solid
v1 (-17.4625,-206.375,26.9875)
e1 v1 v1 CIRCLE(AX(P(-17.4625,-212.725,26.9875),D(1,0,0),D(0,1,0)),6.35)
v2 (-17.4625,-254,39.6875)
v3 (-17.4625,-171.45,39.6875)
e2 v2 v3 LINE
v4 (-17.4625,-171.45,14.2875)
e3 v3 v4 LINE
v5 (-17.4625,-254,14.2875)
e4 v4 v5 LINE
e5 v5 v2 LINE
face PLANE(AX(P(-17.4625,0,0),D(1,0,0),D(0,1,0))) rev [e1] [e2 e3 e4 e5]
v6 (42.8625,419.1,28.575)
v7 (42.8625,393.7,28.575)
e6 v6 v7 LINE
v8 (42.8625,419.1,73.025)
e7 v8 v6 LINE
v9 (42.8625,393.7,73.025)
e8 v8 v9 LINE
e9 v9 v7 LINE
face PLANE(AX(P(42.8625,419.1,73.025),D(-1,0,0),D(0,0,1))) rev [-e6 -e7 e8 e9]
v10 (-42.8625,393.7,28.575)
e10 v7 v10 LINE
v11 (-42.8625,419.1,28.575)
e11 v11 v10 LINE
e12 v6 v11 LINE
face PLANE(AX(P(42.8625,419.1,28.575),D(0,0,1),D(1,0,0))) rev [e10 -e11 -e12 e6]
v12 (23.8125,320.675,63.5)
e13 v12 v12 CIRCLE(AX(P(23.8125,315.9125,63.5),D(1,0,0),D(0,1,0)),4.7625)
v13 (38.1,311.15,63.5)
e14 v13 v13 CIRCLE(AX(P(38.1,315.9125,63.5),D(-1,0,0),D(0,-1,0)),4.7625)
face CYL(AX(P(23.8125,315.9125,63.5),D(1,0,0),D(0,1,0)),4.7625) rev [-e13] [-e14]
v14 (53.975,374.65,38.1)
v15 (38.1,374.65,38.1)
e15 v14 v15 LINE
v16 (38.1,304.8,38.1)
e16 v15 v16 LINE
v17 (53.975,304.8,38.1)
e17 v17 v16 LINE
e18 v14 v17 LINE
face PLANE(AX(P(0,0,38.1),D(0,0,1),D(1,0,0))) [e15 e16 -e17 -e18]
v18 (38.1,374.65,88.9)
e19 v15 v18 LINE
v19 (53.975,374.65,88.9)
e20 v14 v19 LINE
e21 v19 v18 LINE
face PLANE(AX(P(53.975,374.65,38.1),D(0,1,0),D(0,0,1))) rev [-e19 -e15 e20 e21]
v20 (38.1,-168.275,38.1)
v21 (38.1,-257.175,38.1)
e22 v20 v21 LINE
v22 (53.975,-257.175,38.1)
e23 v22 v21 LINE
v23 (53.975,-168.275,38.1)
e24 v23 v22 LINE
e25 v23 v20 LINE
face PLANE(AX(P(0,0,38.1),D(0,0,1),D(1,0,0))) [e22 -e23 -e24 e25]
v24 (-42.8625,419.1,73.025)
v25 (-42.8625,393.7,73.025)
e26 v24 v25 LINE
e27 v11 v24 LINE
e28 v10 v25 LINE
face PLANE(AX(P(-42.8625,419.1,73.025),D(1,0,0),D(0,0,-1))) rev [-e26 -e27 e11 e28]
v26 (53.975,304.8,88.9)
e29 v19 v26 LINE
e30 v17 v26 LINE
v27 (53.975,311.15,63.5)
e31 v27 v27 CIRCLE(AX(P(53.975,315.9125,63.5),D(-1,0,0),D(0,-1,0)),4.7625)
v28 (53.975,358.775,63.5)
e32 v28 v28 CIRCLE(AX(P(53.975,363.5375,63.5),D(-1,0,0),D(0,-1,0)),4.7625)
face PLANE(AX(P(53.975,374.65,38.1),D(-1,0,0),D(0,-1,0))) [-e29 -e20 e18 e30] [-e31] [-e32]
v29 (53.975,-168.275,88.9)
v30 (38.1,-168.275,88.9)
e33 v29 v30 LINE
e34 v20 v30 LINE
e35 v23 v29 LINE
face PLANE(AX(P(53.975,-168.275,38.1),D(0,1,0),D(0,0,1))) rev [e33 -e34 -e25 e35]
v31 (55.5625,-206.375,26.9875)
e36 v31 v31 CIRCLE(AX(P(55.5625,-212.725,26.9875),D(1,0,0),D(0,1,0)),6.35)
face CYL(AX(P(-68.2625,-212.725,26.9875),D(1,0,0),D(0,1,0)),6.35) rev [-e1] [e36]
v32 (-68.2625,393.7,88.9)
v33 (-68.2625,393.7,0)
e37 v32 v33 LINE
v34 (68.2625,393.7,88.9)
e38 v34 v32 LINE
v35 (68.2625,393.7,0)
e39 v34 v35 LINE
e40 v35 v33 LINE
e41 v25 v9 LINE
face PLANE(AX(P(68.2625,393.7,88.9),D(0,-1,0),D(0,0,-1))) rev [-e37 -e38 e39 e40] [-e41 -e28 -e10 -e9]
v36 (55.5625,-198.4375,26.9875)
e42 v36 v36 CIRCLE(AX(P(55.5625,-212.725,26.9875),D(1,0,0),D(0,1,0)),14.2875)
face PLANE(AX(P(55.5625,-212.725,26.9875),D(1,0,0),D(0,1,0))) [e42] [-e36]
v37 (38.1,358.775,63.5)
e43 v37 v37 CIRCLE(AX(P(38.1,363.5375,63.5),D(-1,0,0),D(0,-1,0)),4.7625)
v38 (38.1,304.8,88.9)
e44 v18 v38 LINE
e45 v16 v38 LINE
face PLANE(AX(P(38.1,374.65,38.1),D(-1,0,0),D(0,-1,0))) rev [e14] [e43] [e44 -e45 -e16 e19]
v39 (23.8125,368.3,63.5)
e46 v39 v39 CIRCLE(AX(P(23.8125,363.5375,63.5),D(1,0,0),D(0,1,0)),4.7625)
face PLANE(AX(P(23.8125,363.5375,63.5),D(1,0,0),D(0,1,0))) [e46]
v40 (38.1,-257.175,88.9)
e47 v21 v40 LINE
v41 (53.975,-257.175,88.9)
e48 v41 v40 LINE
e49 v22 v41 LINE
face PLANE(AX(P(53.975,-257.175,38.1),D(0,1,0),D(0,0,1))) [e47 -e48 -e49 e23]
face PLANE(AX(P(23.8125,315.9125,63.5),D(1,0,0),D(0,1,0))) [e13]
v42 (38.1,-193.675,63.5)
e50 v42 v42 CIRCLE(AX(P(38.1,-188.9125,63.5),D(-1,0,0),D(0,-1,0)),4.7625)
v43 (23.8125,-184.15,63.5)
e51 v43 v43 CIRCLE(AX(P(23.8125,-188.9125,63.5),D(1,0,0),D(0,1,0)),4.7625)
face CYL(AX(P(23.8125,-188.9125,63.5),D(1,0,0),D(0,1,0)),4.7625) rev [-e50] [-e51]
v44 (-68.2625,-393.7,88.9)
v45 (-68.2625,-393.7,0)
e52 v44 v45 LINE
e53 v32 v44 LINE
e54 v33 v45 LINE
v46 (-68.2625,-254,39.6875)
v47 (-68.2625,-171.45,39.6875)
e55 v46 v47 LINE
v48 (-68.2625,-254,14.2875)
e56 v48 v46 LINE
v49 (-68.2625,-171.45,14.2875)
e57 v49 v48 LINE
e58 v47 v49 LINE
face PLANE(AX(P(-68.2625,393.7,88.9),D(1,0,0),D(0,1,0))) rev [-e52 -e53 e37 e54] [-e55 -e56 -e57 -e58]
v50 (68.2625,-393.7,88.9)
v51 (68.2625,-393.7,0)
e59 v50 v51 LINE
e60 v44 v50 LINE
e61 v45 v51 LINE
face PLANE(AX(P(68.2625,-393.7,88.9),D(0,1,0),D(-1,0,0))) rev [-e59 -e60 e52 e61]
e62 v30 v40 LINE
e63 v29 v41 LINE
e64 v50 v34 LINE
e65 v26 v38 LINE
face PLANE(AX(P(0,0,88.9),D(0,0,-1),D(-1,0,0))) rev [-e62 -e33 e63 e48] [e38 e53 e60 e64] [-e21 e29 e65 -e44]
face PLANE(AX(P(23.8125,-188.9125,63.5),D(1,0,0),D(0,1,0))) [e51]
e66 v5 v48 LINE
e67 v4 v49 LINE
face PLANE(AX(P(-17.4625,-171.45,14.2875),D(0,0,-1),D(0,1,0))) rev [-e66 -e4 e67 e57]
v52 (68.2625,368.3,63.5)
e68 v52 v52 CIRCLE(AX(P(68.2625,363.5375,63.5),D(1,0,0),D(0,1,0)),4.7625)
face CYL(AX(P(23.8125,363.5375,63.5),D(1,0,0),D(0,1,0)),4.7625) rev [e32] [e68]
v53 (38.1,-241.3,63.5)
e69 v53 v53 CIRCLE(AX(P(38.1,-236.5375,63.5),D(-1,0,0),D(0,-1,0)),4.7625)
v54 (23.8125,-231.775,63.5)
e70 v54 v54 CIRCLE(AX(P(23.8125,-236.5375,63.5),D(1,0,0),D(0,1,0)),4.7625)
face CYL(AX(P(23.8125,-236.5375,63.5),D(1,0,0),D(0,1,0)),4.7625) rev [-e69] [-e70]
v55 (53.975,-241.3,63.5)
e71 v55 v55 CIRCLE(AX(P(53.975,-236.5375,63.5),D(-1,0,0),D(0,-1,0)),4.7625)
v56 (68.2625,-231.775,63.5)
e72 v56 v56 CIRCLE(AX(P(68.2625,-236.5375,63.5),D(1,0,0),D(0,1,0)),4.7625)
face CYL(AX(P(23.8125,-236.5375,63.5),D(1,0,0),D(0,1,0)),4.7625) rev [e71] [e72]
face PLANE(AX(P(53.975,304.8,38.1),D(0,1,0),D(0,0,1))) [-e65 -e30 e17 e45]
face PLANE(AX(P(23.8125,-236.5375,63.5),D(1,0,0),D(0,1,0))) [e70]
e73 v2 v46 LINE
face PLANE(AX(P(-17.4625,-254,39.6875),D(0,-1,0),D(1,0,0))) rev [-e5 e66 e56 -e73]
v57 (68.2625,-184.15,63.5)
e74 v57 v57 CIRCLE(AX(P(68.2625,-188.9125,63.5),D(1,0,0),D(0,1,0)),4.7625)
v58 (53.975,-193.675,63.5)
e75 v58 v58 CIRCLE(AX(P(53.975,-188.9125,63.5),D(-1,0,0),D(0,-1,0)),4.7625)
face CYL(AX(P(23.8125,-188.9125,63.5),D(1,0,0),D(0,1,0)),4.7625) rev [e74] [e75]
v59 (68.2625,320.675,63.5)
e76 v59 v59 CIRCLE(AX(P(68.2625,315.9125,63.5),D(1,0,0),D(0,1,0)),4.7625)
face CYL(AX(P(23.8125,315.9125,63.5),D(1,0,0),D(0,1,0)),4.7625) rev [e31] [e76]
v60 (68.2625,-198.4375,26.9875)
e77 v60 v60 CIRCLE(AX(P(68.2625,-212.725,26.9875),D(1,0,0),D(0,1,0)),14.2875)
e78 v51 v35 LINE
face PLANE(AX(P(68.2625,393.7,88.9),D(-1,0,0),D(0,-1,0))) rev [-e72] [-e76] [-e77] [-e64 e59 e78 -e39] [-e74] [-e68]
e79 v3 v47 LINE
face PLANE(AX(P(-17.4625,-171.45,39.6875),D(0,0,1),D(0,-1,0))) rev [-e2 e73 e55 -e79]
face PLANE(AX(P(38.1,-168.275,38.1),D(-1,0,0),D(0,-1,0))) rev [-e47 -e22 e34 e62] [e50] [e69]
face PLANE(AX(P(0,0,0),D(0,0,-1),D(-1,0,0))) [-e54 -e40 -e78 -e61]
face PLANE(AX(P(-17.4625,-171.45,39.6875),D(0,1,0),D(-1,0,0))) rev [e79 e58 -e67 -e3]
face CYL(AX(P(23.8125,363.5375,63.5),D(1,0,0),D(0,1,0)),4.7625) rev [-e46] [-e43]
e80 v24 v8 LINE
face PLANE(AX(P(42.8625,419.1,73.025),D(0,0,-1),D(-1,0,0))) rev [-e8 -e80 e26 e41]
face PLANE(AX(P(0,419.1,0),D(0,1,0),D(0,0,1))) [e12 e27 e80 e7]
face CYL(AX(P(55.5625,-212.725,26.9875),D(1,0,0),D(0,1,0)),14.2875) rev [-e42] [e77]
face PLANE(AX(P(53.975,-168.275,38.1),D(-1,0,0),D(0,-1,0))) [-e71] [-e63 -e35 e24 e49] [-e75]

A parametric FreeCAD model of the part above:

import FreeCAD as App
import Part
import Sketcher

V = App.Vector
Q = App.Units.Quantity


def add_polygon(sketch, points):
    """Adds a closed chain of lines whose ends are joined by coincident constraints."""
    first, n = sketch.GeometryCount, len(points)
    for a, b in zip(points, points[1:] + points[:1]):
        sketch.addGeometry(Part.LineSegment(App.Vector(*a, 0), App.Vector(*b, 0)), False)
    for i in range(n):
        sketch.addConstraint(Sketcher.Constraint("Coincident", first + i, 2, first + (i + 1) % n, 1))

doc = App.newDocument("Part")
params = doc.addObject("Spreadsheet::Sheet", "Params")
for row, (alias, value) in enumerate([
    ("sketch1_height", "31 in"),
    ("sketch1_width", "5.375 in"),
    ("pad1_length", "3.5 in"),
    ("sketch2_height", "1.75 in"),
    ("sketch2_width", "3.375 in"),
    ("pad2_length", "1 in"),
    ("sketch3_height", "1 in"),
    ("sketch3_width", "3.25 in"),
    ("pocket1_length", "2 in"),
    ("sketch4_height", "3.5 in"),
    ("sketch4_height2", "2.75 in"),
    ("sketch4_width", "0.625 in"),
    ("pocket2_length", "2 in"),
    ("sketch5_diameter", "0.375 in"),
    ("pocket3_length", "1.75 in"),
    ("sketch6_diameter", "1.125 in"),
    ("pocket4_length", "0.5 in"),
    ("sketch7_diameter", "0.5 in"),
], start=1):
    params.set(f"A{row}", alias)
    params.set(f"B{row}", "=" + value)
    params.setAlias(f"B{row}", alias)

body = doc.addObject("PartDesign::Body", "Body")

sketch1 = body.newObject("Sketcher::SketchObject", "Sketch")
sketch1.AttachmentSupport = (doc.getObject("XY_Plane"), [""])
sketch1.MapMode = "FlatFace"
add_polygon(sketch1, [(-68, 394), (-68, -394), (68, -394), (68, 394)])
sketch1.addConstraint([
    Sketcher.Constraint("Vertical", 0),
    Sketcher.Constraint("Horizontal", 1),
    Sketcher.Constraint("Vertical", 2),
    Sketcher.Constraint("Horizontal", 3),
    Sketcher.Constraint("Symmetric", 0, 2, 2, 2, -1, 1),
    Sketcher.Constraint("DistanceY", 0, 2, 0, 1, Q("31 in")),
    Sketcher.Constraint("DistanceX", 1, 1, 1, 2, Q("5.375 in")),
])
sketch1.setExpression("Constraints[9]", "Params.sketch1_height")
sketch1.setExpression("Constraints[10]", "Params.sketch1_width")
pad1 = body.newObject("PartDesign::Pad", "Pad")
pad1.Profile = sketch1
pad1.setExpression("Length", "Params.pad1_length")

sketch2 = body.newObject("Sketcher::SketchObject", "Sketch001")
sketch2.AttachmentSupport = (doc.getObject("XZ_Plane"), [""])
sketch2.MapMode = "FlatFace"
sketch2.AttachmentOffset = App.Placement(V(0, 0, -15.5 * 25.4), App.Rotation())
add_polygon(sketch2, [(-43, 29), (-43, 73), (43, 73), (43, 29)])
sketch2.addConstraint([
    Sketcher.Constraint("Vertical", 0),
    Sketcher.Constraint("Horizontal", 1),
    Sketcher.Constraint("Vertical", 2),
    Sketcher.Constraint("Horizontal", 3),
    Sketcher.Constraint("DistanceY", 0, 1, 0, 2, Q("1.75 in")),
    Sketcher.Constraint("DistanceX", 1, 1, 1, 2, Q("3.375 in")),
    Sketcher.Constraint("DistanceX", 0, 2, -1, 1, Q("1.6875 in")),
    Sketcher.Constraint("DistanceY", -1, 1, 0, 2, Q("2.875 in")),
])
sketch2.setExpression("Constraints[8]", "Params.sketch2_height")
sketch2.setExpression("Constraints[9]", "Params.sketch2_width")
pad2 = body.newObject("PartDesign::Pad", "Pad001")
pad2.Profile = sketch2
pad2.setExpression("Length", "Params.pad2_length")
pad2.Reversed = True

sketch3 = body.newObject("Sketcher::SketchObject", "Sketch002")
sketch3.AttachmentSupport = (doc.getObject("YZ_Plane"), [""])
sketch3.MapMode = "FlatFace"
sketch3.AttachmentOffset = App.Placement(V(0, 0, -2.6875 * 25.4), App.Rotation())
add_polygon(sketch3, [(-171, 14), (-254, 14), (-254, 40), (-171, 40)])
sketch3.addConstraint([
    Sketcher.Constraint("Horizontal", 0),
    Sketcher.Constraint("Vertical", 1),
    Sketcher.Constraint("Horizontal", 2),
    Sketcher.Constraint("Vertical", 3),
    Sketcher.Constraint("DistanceY", 1, 1, 1, 2, Q("1 in")),
    Sketcher.Constraint("DistanceX", 0, 2, -1, 1, Q("10 in")),
    Sketcher.Constraint("DistanceX", 0, 2, 0, 1, Q("3.25 in")),
    Sketcher.Constraint("DistanceY", -1, 1, 0, 2, Q("0.5625 in")),
])
sketch3.setExpression("Constraints[8]", "Params.sketch3_height")
sketch3.setExpression("Constraints[10]", "Params.sketch3_width")
pocket1 = body.newObject("PartDesign::Pocket", "Pocket")
pocket1.Profile = sketch3
pocket1.setExpression("Length", "Params.pocket1_length")
pocket1.Reversed = True

sketch4 = body.newObject("Sketcher::SketchObject", "Sketch003")
sketch4.AttachmentSupport = (doc.getObject("XY_Plane"), [""])
sketch4.MapMode = "FlatFace"
sketch4.AttachmentOffset = App.Placement(V(0, 0, 3.5 * 25.4), App.Rotation())
add_polygon(sketch4, [(38, 375), (38, 305), (54, 305), (54, 375)])
add_polygon(sketch4, [(38, -168), (38, -257), (54, -257), (54, -168)])
sketch4.addConstraint([
    Sketcher.Constraint("Vertical", 0),
    Sketcher.Constraint("Horizontal", 1),
    Sketcher.Constraint("Vertical", 2),
    Sketcher.Constraint("Horizontal", 3),
    Sketcher.Constraint("Vertical", 4),
    Sketcher.Constraint("Horizontal", 5),
    Sketcher.Constraint("Vertical", 6),
    Sketcher.Constraint("Horizontal", 7),
    Sketcher.Constraint("Vertical", 3, 2, 4, 2),
    Sketcher.Constraint("Vertical", 2, 2, 5, 2),
    Sketcher.Constraint("DistanceY", 4, 2, 4, 1, Q("3.5 in")),
    Sketcher.Constraint("DistanceY", -1, 1, 0, 2, Q("12 in")),
    Sketcher.Constraint("DistanceY", 0, 2, 0, 1, Q("2.75 in")),
    Sketcher.Constraint("DistanceX", -1, 1, 0, 2, Q("1.5 in")),
    Sketcher.Constraint("DistanceX", 1, 1, 1, 2, Q("0.625 in")),
    Sketcher.Constraint("DistanceY", 4, 2, -1, 1, Q("10.125 in")),
])
sketch4.setExpression("Constraints[18]", "Params.sketch4_height")
sketch4.setExpression("Constraints[20]", "Params.sketch4_height2")
sketch4.setExpression("Constraints[22]", "Params.sketch4_width")
pocket2 = body.newObject("PartDesign::Pocket", "Pocket001")
pocket2.Profile = sketch4
pocket2.setExpression("Length", "Params.pocket2_length")

sketch5 = body.newObject("Sketcher::SketchObject", "Sketch004")
sketch5.AttachmentSupport = (doc.getObject("YZ_Plane"), [""])
sketch5.MapMode = "FlatFace"
sketch5.AttachmentOffset = App.Placement(V(0, 0, 2.6875 * 25.4), App.Rotation())
sketch5.addGeometry([
    Part.Circle(V(-188.9, 63.5, 0), V(0, 0, 1), 4.8),
    Part.Circle(V(-236.5, 63.5, 0), V(0, 0, 1), 4.8),
    Part.Circle(V(315.9, 63.5, 0), V(0, 0, 1), 4.8),
    Part.Circle(V(363.5, 63.5, 0), V(0, 0, 1), 4.8),
], False)
sketch5.addConstraint([
    Sketcher.Constraint("Equal", 0, 1),
    Sketcher.Constraint("Equal", 1, 2),
    Sketcher.Constraint("Equal", 2, 3),
    Sketcher.Constraint("Horizontal", 0, 3, 1, 3),
    Sketcher.Constraint("Horizontal", 1, 3, 2, 3),
    Sketcher.Constraint("Horizontal", 2, 3, 3, 3),
    Sketcher.Constraint("Diameter", 0, Q("0.375 in")),
    Sketcher.Constraint("DistanceY", -1, 1, 0, 3, Q("2.5 in")),
    Sketcher.Constraint("DistanceX", 1, 3, 2, 3, Q("21.75 in")),
    Sketcher.Constraint("DistanceX", 0, 3, 3, 3, Q("21.75 in")),
    Sketcher.Constraint("DistanceX", 0, 3, -1, 1, Q("7.4375 in")),
    Sketcher.Constraint("DistanceX", 1, 3, -1, 1, Q("9.3125 in")),
])
sketch5.setExpression("Constraints[6]", "Params.sketch5_diameter")
pocket3 = body.newObject("PartDesign::Pocket", "Pocket002")
pocket3.Profile = sketch5
pocket3.setExpression("Length", "Params.pocket3_length")

sketch6 = body.newObject("Sketcher::SketchObject", "Sketch005")
sketch6.AttachmentSupport = (doc.getObject("YZ_Plane"), [""])
sketch6.MapMode = "FlatFace"
sketch6.AttachmentOffset = App.Placement(V(0, 0, 2.6875 * 25.4), App.Rotation())
sketch6.addGeometry(Part.Circle(V(-213, 27, 0), V(0, 0, 1), 14), False)
sketch6.addConstraint([
    Sketcher.Constraint("Diameter", 0, Q("1.125 in")),
    Sketcher.Constraint("DistanceX", 0, 3, -1, 1, Q("8.375 in")),
    Sketcher.Constraint("DistanceY", -1, 1, 0, 3, Q("1.0625 in")),
])
sketch6.setExpression("Constraints[0]", "Params.sketch6_diameter")
pocket4 = body.newObject("PartDesign::Pocket", "Pocket003")
pocket4.Profile = sketch6
pocket4.setExpression("Length", "Params.pocket4_length")

sketch7 = body.newObject("Sketcher::SketchObject", "Sketch006")
sketch7.AttachmentSupport = (doc.getObject("YZ_Plane"), [""])
sketch7.MapMode = "FlatFace"
sketch7.AttachmentOffset = App.Placement(V(0, 0, 2.6875 * 25.4), App.Rotation())
sketch7.addGeometry(Part.Circle(V(-213, 27, 0), V(0, 0, 1), 6), False)
sketch7.addConstraint([
    Sketcher.Constraint("Diameter", 0, Q("0.5 in")),
    Sketcher.Constraint("DistanceX", 0, 3, -1, 1, Q("8.375 in")),
    Sketcher.Constraint("DistanceY", -1, 1, 0, 3, Q("1.0625 in")),
])
sketch7.setExpression("Constraints[0]", "Params.sketch7_diameter")
pocket5 = body.newObject("PartDesign::Pocket", "Pocket004")
pocket5.Profile = sketch7
pocket5.Type = "ThroughAll"

doc.recompute()
